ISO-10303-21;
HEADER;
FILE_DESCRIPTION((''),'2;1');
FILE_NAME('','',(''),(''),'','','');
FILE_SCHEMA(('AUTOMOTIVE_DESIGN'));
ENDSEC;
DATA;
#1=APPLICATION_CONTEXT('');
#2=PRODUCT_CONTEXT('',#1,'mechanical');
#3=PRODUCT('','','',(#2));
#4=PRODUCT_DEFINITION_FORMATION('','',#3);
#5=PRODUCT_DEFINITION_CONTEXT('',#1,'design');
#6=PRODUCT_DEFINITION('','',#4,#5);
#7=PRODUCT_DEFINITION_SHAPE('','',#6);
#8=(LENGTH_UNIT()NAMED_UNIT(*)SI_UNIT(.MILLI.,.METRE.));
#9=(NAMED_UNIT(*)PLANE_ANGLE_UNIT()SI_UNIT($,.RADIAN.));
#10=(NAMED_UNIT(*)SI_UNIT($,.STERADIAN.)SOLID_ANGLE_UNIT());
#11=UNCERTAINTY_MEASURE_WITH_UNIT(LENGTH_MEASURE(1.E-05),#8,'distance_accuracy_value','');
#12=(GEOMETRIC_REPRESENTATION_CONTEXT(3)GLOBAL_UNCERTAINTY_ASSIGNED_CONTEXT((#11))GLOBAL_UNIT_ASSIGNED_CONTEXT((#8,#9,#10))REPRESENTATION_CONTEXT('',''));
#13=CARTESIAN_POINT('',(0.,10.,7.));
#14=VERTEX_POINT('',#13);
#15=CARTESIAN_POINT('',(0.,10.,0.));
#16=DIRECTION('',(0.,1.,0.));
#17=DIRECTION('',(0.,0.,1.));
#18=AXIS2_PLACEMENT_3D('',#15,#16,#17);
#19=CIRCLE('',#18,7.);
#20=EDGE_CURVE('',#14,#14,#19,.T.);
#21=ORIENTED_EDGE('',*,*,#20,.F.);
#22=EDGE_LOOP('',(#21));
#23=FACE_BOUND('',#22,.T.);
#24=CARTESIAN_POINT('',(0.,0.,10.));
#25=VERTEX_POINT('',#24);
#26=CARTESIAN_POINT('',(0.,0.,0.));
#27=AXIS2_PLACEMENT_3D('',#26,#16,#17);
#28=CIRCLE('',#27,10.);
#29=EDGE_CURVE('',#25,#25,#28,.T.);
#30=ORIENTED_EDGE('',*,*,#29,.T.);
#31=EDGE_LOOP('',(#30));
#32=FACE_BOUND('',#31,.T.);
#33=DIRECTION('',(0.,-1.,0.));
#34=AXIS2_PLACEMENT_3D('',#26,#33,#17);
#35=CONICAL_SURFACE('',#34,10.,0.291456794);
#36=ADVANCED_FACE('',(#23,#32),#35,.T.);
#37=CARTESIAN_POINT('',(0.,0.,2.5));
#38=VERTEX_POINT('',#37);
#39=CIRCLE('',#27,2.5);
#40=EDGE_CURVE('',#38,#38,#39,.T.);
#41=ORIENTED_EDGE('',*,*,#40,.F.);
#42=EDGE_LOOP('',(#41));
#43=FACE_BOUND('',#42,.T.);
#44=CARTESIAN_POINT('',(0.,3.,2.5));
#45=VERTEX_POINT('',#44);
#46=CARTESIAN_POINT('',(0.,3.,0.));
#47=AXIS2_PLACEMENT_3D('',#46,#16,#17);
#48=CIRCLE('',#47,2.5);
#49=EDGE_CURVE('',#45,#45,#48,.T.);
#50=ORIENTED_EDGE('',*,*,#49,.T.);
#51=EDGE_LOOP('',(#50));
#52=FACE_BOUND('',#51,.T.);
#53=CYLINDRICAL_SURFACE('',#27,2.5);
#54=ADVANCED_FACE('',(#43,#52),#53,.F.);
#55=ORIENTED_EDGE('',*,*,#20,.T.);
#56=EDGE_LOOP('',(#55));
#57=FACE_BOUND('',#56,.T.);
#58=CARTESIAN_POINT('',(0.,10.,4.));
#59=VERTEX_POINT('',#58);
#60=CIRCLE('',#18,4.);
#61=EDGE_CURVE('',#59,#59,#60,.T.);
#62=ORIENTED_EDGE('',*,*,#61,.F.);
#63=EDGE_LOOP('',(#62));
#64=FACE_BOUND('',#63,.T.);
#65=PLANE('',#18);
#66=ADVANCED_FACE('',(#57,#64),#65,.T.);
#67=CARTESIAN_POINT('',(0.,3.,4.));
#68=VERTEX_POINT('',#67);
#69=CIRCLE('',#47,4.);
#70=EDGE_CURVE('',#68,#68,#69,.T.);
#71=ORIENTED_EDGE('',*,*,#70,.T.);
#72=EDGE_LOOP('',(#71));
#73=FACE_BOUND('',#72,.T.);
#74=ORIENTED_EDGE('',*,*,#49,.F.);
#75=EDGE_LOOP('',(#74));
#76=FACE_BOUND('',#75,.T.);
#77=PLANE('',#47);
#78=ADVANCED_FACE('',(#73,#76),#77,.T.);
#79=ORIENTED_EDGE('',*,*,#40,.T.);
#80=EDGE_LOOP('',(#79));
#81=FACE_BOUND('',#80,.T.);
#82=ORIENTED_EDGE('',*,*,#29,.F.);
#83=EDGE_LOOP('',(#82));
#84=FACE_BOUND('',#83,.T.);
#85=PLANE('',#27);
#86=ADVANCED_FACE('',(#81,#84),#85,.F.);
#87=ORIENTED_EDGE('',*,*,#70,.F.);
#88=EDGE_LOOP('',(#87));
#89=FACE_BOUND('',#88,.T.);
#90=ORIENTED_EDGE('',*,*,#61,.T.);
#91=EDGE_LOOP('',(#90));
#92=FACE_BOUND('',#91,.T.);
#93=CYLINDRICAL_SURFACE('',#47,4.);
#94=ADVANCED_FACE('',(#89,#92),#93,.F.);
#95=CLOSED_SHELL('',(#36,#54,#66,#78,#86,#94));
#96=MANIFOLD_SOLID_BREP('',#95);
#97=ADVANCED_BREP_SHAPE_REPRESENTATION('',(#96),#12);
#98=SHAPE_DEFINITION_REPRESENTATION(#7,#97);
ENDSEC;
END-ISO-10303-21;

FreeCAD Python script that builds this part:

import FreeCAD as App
import Part
import Sketcher

V = App.Vector

doc = App.newDocument("Part")
body = doc.addObject("PartDesign::Body", "Body")

# Sketch on XZ plane
sketch1 = doc.addObject("Sketcher::SketchObject", "Sketch")
body.addObject(sketch1)
sketch1.AttachmentSupport = (doc.XZ_Plane, [""])
sketch1.MapMode = "FlatFace"
sketch1.addGeometry(Part.Circle(V(0, 0, 0), V(0, 0, 1), 10), False)
sketch1.addConstraint([
    Sketcher.Constraint("Coincident", 0, 3, -1, 1),
    Sketcher.Constraint("Diameter", 0, 20.0),
])
pad1 = doc.addObject("PartDesign::Pad", "Pad")
body.addObject(pad1)
pad1.Profile = sketch1
pad1.Length = 10
pad1.Reversed = True
pad1.TaperAngle = -16.699244

# Sketch on XZ plane
sketch2 = doc.addObject("Sketcher::SketchObject", "Sketch001")
body.addObject(sketch2)
sketch2.AttachmentSupport = (doc.XZ_Plane, [""])
sketch2.MapMode = "FlatFace"
sketch2.AttachmentOffset = App.Placement(V(0, 0, -10), App.Rotation())
sketch2.addGeometry(Part.Circle(V(0, 0, 0), V(0, 0, 1), 4), False)
sketch2.addConstraint([
    Sketcher.Constraint("Coincident", 0, 3, -1, 1),
    Sketcher.Constraint("Diameter", 0, 8.0),
])
pocket1 = doc.addObject("PartDesign::Pocket", "Pocket")
body.addObject(pocket1)
pocket1.Profile = sketch2
pocket1.Length = 7
pocket1.Reversed = True

# Sketch on XZ plane
sketch3 = doc.addObject("Sketcher::SketchObject", "Sketch002")
body.addObject(sketch3)
sketch3.AttachmentSupport = (doc.XZ_Plane, [""])
sketch3.MapMode = "FlatFace"
sketch3.AttachmentOffset = App.Placement(V(0, 0, -3), App.Rotation())
sketch3.addGeometry(Part.Circle(V(0, 0, 0), V(0, 0, 1), 2.5), False)
sketch3.addConstraint([
    Sketcher.Constraint("Coincident", 0, 3, -1, 1),
    Sketcher.Constraint("Diameter", 0, 5.0),
])
pocket2 = doc.addObject("PartDesign::Pocket", "Pocket001")
body.addObject(pocket2)
pocket2.Profile = sketch3
pocket2.Type = "ThroughAll"
pocket2.Reversed = True

doc.recompute()
